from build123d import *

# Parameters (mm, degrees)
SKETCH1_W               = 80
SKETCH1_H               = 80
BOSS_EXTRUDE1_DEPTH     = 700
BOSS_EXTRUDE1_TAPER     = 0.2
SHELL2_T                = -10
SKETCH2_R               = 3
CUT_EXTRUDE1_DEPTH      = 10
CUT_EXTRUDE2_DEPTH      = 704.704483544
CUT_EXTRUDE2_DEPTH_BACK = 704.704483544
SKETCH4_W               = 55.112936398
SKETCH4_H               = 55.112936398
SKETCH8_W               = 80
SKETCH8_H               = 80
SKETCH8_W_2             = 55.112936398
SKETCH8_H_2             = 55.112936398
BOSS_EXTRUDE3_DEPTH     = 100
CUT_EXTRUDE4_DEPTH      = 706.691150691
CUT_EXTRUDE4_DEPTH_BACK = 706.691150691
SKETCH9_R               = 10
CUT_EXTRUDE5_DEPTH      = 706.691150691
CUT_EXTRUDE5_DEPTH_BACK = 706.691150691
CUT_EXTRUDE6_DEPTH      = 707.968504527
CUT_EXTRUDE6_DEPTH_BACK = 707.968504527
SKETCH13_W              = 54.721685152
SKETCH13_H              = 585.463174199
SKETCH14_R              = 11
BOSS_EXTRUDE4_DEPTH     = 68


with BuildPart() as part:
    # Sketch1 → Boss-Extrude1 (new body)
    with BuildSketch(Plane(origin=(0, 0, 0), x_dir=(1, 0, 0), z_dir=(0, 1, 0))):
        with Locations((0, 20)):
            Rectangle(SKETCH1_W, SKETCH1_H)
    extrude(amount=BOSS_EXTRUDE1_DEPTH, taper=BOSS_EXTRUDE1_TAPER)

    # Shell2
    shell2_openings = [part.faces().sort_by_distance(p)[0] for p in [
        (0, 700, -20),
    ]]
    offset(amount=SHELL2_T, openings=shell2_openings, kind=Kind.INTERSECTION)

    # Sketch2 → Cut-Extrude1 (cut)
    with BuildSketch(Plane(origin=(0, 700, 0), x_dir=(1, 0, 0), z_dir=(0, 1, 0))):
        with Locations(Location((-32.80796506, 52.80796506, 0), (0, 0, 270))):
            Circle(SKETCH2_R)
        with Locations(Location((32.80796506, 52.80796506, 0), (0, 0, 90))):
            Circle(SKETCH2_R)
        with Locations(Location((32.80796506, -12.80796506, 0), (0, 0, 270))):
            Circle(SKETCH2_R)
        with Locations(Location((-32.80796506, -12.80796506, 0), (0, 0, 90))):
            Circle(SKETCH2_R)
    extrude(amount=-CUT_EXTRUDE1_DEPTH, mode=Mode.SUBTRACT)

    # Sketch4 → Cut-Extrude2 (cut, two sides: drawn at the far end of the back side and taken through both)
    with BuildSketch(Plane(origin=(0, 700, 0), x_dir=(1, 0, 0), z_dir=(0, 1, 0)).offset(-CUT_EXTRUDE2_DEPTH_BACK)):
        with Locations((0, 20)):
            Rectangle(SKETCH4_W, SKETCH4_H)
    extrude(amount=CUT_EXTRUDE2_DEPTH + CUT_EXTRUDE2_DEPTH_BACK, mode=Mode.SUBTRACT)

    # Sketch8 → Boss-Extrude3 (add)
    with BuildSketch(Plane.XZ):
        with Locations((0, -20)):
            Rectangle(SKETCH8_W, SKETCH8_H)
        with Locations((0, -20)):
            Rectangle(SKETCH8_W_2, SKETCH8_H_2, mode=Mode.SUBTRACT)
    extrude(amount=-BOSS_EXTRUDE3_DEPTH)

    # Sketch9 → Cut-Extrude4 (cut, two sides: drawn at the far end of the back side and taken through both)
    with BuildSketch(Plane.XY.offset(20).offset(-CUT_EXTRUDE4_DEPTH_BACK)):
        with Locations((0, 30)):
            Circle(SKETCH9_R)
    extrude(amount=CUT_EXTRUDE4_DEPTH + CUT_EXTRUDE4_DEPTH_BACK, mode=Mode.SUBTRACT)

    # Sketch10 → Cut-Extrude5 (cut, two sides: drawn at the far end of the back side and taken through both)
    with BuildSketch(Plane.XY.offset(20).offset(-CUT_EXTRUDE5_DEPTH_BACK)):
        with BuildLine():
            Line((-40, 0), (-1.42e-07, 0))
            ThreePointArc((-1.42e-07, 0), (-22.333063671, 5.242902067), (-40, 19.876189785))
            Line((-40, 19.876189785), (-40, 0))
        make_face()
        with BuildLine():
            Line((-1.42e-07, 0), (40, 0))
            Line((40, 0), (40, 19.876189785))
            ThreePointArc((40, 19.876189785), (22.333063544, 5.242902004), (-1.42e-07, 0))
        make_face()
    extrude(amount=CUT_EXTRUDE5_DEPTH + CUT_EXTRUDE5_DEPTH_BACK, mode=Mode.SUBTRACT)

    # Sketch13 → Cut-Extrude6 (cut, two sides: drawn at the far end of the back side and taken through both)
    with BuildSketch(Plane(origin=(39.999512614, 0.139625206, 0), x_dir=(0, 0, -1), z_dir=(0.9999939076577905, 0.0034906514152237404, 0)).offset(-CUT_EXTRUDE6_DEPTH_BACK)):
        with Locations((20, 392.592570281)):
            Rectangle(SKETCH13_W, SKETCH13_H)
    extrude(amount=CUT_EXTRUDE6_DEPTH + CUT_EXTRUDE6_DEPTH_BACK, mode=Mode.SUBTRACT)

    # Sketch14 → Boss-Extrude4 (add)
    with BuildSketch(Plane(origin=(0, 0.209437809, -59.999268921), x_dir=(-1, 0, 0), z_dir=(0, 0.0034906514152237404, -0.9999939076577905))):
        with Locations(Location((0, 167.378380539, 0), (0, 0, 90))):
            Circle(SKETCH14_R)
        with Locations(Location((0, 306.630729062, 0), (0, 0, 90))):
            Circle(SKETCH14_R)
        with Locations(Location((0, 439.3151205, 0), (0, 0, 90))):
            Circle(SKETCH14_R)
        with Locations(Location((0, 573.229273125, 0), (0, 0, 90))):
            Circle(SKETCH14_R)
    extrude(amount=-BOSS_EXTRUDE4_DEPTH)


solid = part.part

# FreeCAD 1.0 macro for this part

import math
import FreeCAD as App
import Part
import Sketcher

V = App.Vector


def faces_at(feature, points):
    """Names of the faces that lie closest to the given points."""
    faces = feature.Shape.Faces
    near = lambda p: min(range(len(faces)), key=lambda i: faces[i].distToShape(Part.Vertex(*p))[0])
    return sorted({f"Face{near(p) + 1}" for p in points})


def add_polygon(sketch, points):
    """Adds a closed chain of lines whose ends are joined by coincident constraints."""
    first, n = sketch.GeometryCount, len(points)
    for a, b in zip(points, points[1:] + points[:1]):
        sketch.addGeometry(Part.LineSegment(App.Vector(*a, 0), App.Vector(*b, 0)), False)
    for i in range(n):
        sketch.addConstraint(Sketcher.Constraint("Coincident", first + i, 2, first + (i + 1) % n, 1))

doc = App.newDocument("Part")
body = doc.addObject("PartDesign::Body", "Body")

sketch1 = body.newObject("Sketcher::SketchObject", "Sketch")
sketch1.AttachmentSupport = (doc.getObject("XZ_Plane"), [""])
sketch1.MapMode = "FlatFace"
add_polygon(sketch1, [(-40, -60), (-40, 20), (40, 20), (40, -60)])
sketch1.addConstraint(Sketcher.Constraint("Vertical", 0))
sketch1.addConstraint(Sketcher.Constraint("Horizontal", 1))
sketch1.addConstraint(Sketcher.Constraint("Vertical", 2))
sketch1.addConstraint(Sketcher.Constraint("Horizontal", 3))
sketch1.addConstraint(Sketcher.Constraint("Equal", 3, 0))
sketch1.addConstraint(Sketcher.Constraint("DistanceX", 1, 1, 1, 2, 80.0))
sketch1.addConstraint(Sketcher.Constraint("DistanceX", 0, 2, -1, 1, 40.0))
sketch1.addConstraint(Sketcher.Constraint("DistanceY", -1, 1, 0, 2, 20.0))
pad1 = body.newObject("PartDesign::Pad", "Pad")
pad1.Profile = sketch1
pad1.Length = 700
pad1.Reversed = True
pad1.TaperAngle = -0.2
doc.recompute()

thickness = body.newObject("PartDesign::Thickness", "Thickness")
thickness.Base = (pad1, faces_at(pad1, [(0, 700, -20)]))
thickness.Value = 10
thickness.Reversed = True
thickness.Join = "Intersection"

sketch2 = body.newObject("Sketcher::SketchObject", "Sketch001")
sketch2.AttachmentSupport = (doc.getObject("XZ_Plane"), [""])
sketch2.MapMode = "FlatFace"
sketch2.AttachmentOffset = App.Placement(V(0, 0, -700), App.Rotation())
sketch2.addGeometry(Part.Circle(V(-32.807965, -52.807965, 0), V(0, 0, 1), 3), False)
sketch2.addGeometry(Part.Circle(V(32.807965, -52.807965, 0), V(0, 0, 1), 3), False)
sketch2.addGeometry(Part.Circle(V(32.807965, 12.807965, 0), V(0, 0, 1), 3), False)
sketch2.addGeometry(Part.Circle(V(-32.807965, 12.807965, 0), V(0, 0, 1), 3), False)
sketch2.addConstraint(Sketcher.Constraint("Equal", 0, 1))
sketch2.addConstraint(Sketcher.Constraint("Equal", 1, 2))
sketch2.addConstraint(Sketcher.Constraint("Equal", 2, 3))
sketch2.addConstraint(Sketcher.Constraint("Symmetric", 0, 3, 1, 3, -2))
sketch2.addConstraint(Sketcher.Constraint("Symmetric", 2, 3, 3, 3, -2))
sketch2.addConstraint(Sketcher.Constraint("Vertical", 1, 3, 2, 3))
sketch2.addConstraint(Sketcher.Constraint("Diameter", 0, 6.0))
sketch2.addConstraint(Sketcher.Constraint("DistanceX", 0, 3, 1, 3, 65.61593))
sketch2.addConstraint(Sketcher.Constraint("DistanceY", 1, 3, 2, 3, 65.61593))
sketch2.addConstraint(Sketcher.Constraint("DistanceY", 0, 3, -1, 1, 52.807965))
pocket1 = body.newObject("PartDesign::Pocket", "Pocket")
pocket1.Profile = sketch2
pocket1.Length = 10
pocket1.Reversed = True

sketch3 = body.newObject("Sketcher::SketchObject", "Sketch002")
sketch3.AttachmentSupport = (doc.getObject("XZ_Plane"), [""])
sketch3.MapMode = "FlatFace"
sketch3.AttachmentOffset = App.Placement(V(0, 0, -700), App.Rotation())
add_polygon(sketch3, [(-27.556468, -47.556468), (-27.556468, 7.556468), (27.556468, 7.556468), (27.556468, -47.556468)])
sketch3.addConstraint(Sketcher.Constraint("Vertical", 0))
sketch3.addConstraint(Sketcher.Constraint("Horizontal", 1))
sketch3.addConstraint(Sketcher.Constraint("Vertical", 2))
sketch3.addConstraint(Sketcher.Constraint("Horizontal", 3))
sketch3.addConstraint(Sketcher.Constraint("Equal", 3, 0))
sketch3.addConstraint(Sketcher.Constraint("DistanceX", 1, 1, 1, 2, 55.112936))
sketch3.addConstraint(Sketcher.Constraint("DistanceX", 0, 2, -1, 1, 27.556468))
sketch3.addConstraint(Sketcher.Constraint("DistanceY", -1, 1, 0, 2, 7.556468))
pocket2 = body.newObject("PartDesign::Pocket", "Pocket001")
pocket2.Profile = sketch3
pocket2.Type = "ThroughAll"
pocket2.Midplane = True

sketch4 = body.newObject("Sketcher::SketchObject", "Sketch003")
sketch4.AttachmentSupport = (doc.getObject("XZ_Plane"), [""])
sketch4.MapMode = "FlatFace"
add_polygon(sketch4, [(-40, 20), (-40, -60), (40, -60), (40, 20)])
add_polygon(sketch4, [(27.556468, -47.556468), (-27.556468, -47.556468), (-27.556468, 7.556468), (27.556468, 7.556468)])
sketch4.addConstraint(Sketcher.Constraint("Vertical", 0))
sketch4.addConstraint(Sketcher.Constraint("Horizontal", 1))
sketch4.addConstraint(Sketcher.Constraint("Vertical", 2))
sketch4.addConstraint(Sketcher.Constraint("Horizontal", 3))
sketch4.addConstraint(Sketcher.Constraint("Horizontal", 4))
sketch4.addConstraint(Sketcher.Constraint("Vertical", 5))
sketch4.addConstraint(Sketcher.Constraint("Horizontal", 6))
sketch4.addConstraint(Sketcher.Constraint("Vertical", 7))
sketch4.addConstraint(Sketcher.Constraint("Equal", 3, 0))
sketch4.addConstraint(Sketcher.Constraint("Equal", 6, 5))
sketch4.addConstraint(Sketcher.Constraint("DistanceX", 1, 1, 1, 2, 80.0))
sketch4.addConstraint(Sketcher.Constraint("DistanceX", 0, 2, -1, 1, 40.0))
sketch4.addConstraint(Sketcher.Constraint("DistanceY", 0, 2, -1, 1, 60.0))
sketch4.addConstraint(Sketcher.Constraint("DistanceX", 4, 2, 4, 1, 55.112936))
sketch4.addConstraint(Sketcher.Constraint("DistanceX", 4, 2, -1, 1, 27.556468))
sketch4.addConstraint(Sketcher.Constraint("DistanceY", 4, 2, -1, 1, 47.556468))
pad2 = body.newObject("PartDesign::Pad", "Pad001")
pad2.Profile = sketch4
pad2.Length = 100
pad2.Reversed = True

sketch5 = body.newObject("Sketcher::SketchObject", "Sketch004")
sketch5.AttachmentSupport = (doc.getObject("XY_Plane"), [""])
sketch5.MapMode = "FlatFace"
sketch5.AttachmentOffset = App.Placement(V(0, 0, 20), App.Rotation())
sketch5.addGeometry(Part.Circle(V(0, 30, 0), V(0, 0, 1), 10), False)
sketch5.addConstraint(Sketcher.Constraint("PointOnObject", 0, 3, -2))
sketch5.addConstraint(Sketcher.Constraint("Diameter", 0, 20.0))
sketch5.addConstraint(Sketcher.Constraint("DistanceY", -1, 1, 0, 3, 30.0))
pocket3 = body.newObject("PartDesign::Pocket", "Pocket002")
pocket3.Profile = sketch5
pocket3.Type = "ThroughAll"
pocket3.Midplane = True

sketch6 = body.newObject("Sketcher::SketchObject", "Sketch005")
sketch6.AttachmentSupport = (doc.getObject("XY_Plane"), [""])
sketch6.MapMode = "FlatFace"
sketch6.AttachmentOffset = App.Placement(V(0, 0, 20), App.Rotation())
sketch6.addGeometry(Part.LineSegment(V(-40, 0, 0), V(0, 0, 0)), False)
sketch6.addGeometry(Part.ArcOfCircle(Part.Circle(V(0, 50.187258, 0), V(0, 0, 1), 50.187258), math.radians(-142.845999), math.radians(-90)), False)
sketch6.addGeometry(Part.LineSegment(V(-40, 19.87619, 0), V(-40, 0, 0)), False)
sketch6.addGeometry(Part.LineSegment(V(0, 0, 0), V(40, 0, 0)), False)
sketch6.addGeometry(Part.LineSegment(V(40, 0, 0), V(40, 19.87619, 0)), False)
sketch6.addGeometry(Part.ArcOfCircle(Part.Circle(V(0, 50.187258, 0), V(0, 0, 1), 50.187258), math.radians(-90), math.radians(-37.154001)), False)
sketch6.addConstraint(Sketcher.Constraint("Tangent", 0, 2, 1, 2))
sketch6.addConstraint(Sketcher.Constraint("Coincident", 1, 1, 2, 1))
sketch6.addConstraint(Sketcher.Constraint("Coincident", 2, 2, 0, 1))
sketch6.addConstraint(Sketcher.Constraint("Coincident", 3, 2, 4, 1))
sketch6.addConstraint(Sketcher.Constraint("Coincident", 4, 2, 5, 2))
sketch6.addConstraint(Sketcher.Constraint("Tangent", 5, 1, 3, 1))
sketch6.addConstraint(Sketcher.Constraint("Horizontal", 0))
sketch6.addConstraint(Sketcher.Constraint("Vertical", 2))
sketch6.addConstraint(Sketcher.Constraint("Horizontal", 3))
sketch6.addConstraint(Sketcher.Constraint("Vertical", 4))
sketch6.addConstraint(Sketcher.Constraint("Coincident", 0, 2, -1, 1))
sketch6.addConstraint(Sketcher.Constraint("Coincident", 5, 1, -1, 1))
sketch6.addConstraint(Sketcher.Constraint("Equal", 1, 5))
sketch6.addConstraint(Sketcher.Constraint("Horizontal", 1, 1, 4, 2))
sketch6.addConstraint(Sketcher.Constraint("DistanceX", 0, 1, 0, 2, 40.0))
sketch6.addConstraint(Sketcher.Constraint("Radius", 1, 50.187258))
pocket4 = body.newObject("PartDesign::Pocket", "Pocket003")
pocket4.Profile = sketch6
pocket4.Type = "ThroughAll"
pocket4.Midplane = True

sketch7 = body.newObject("Sketcher::SketchObject", "Sketch006")
sketch7.Placement = App.Placement(V(39.999513, 0.139625, 0), App.Rotation(V(0, 0, -1), V(-0.003490651, 0.999993908, 0), V(0.999993908, 0.003490651, 0), "ZXY"))
add_polygon(sketch7, [(-7.360843, 685.324158), (-7.360843, 99.860983), (47.360843, 99.860983), (47.360843, 685.324158)])
sketch7.addConstraint(Sketcher.Constraint("Vertical", 0))
sketch7.addConstraint(Sketcher.Constraint("Horizontal", 1))
sketch7.addConstraint(Sketcher.Constraint("Vertical", 2))
sketch7.addConstraint(Sketcher.Constraint("Horizontal", 3))
sketch7.addConstraint(Sketcher.Constraint("DistanceX", 1, 1, 1, 2, 54.721685))
sketch7.addConstraint(Sketcher.Constraint("DistanceY", 0, 2, 0, 1, 585.463175))
sketch7.addConstraint(Sketcher.Constraint("DistanceX", 0, 2, -1, 1, 7.360843))
sketch7.addConstraint(Sketcher.Constraint("DistanceY", -1, 1, 0, 2, 99.860983))
pocket5 = body.newObject("PartDesign::Pocket", "Pocket004")
pocket5.Profile = sketch7
pocket5.Type = "ThroughAll"
pocket5.Midplane = True

sketch8 = body.newObject("Sketcher::SketchObject", "Sketch007")
sketch8.Placement = App.Placement(V(0, 0.209438, -59.999269), App.Rotation(V(-1, 0, 0), V(0, 0.999993908, 0.003490651), V(0, 0.003490651, -0.999993908), "ZXY"))
sketch8.addGeometry(Part.Circle(V(0, 167.378381, 0), V(0, 0, 1), 11), False)
sketch8.addGeometry(Part.Circle(V(0, 306.630729, 0), V(0, 0, 1), 11), False)
sketch8.addGeometry(Part.Circle(V(0, 439.315121, 0), V(0, 0, 1), 11), False)
sketch8.addGeometry(Part.Circle(V(0, 573.229274, 0), V(0, 0, 1), 11), False)
sketch8.addConstraint(Sketcher.Constraint("Equal", 0, 1))
sketch8.addConstraint(Sketcher.Constraint("Equal", 1, 2))
sketch8.addConstraint(Sketcher.Constraint("Equal", 2, 3))
sketch8.addConstraint(Sketcher.Constraint("PointOnObject", 0, 3, -2))
sketch8.addConstraint(Sketcher.Constraint("PointOnObject", 1, 3, -2))
sketch8.addConstraint(Sketcher.Constraint("PointOnObject", 2, 3, -2))
sketch8.addConstraint(Sketcher.Constraint("PointOnObject", 3, 3, -2))
sketch8.addConstraint(Sketcher.Constraint("Diameter", 0, 22.0))
sketch8.addConstraint(Sketcher.Constraint("DistanceY", -1, 1, 0, 3, 167.378381))
sketch8.addConstraint(Sketcher.Constraint("DistanceY", -1, 1, 1, 3, 306.630729))
sketch8.addConstraint(Sketcher.Constraint("DistanceY", -1, 1, 2, 3, 439.315121))
sketch8.addConstraint(Sketcher.Constraint("DistanceY", -1, 1, 3, 3, 573.229274))
pad3 = body.newObject("PartDesign::Pad", "Pad002")
pad3.Profile = sketch8
pad3.Length = 68
pad3.Reversed = True

doc.recompute()
